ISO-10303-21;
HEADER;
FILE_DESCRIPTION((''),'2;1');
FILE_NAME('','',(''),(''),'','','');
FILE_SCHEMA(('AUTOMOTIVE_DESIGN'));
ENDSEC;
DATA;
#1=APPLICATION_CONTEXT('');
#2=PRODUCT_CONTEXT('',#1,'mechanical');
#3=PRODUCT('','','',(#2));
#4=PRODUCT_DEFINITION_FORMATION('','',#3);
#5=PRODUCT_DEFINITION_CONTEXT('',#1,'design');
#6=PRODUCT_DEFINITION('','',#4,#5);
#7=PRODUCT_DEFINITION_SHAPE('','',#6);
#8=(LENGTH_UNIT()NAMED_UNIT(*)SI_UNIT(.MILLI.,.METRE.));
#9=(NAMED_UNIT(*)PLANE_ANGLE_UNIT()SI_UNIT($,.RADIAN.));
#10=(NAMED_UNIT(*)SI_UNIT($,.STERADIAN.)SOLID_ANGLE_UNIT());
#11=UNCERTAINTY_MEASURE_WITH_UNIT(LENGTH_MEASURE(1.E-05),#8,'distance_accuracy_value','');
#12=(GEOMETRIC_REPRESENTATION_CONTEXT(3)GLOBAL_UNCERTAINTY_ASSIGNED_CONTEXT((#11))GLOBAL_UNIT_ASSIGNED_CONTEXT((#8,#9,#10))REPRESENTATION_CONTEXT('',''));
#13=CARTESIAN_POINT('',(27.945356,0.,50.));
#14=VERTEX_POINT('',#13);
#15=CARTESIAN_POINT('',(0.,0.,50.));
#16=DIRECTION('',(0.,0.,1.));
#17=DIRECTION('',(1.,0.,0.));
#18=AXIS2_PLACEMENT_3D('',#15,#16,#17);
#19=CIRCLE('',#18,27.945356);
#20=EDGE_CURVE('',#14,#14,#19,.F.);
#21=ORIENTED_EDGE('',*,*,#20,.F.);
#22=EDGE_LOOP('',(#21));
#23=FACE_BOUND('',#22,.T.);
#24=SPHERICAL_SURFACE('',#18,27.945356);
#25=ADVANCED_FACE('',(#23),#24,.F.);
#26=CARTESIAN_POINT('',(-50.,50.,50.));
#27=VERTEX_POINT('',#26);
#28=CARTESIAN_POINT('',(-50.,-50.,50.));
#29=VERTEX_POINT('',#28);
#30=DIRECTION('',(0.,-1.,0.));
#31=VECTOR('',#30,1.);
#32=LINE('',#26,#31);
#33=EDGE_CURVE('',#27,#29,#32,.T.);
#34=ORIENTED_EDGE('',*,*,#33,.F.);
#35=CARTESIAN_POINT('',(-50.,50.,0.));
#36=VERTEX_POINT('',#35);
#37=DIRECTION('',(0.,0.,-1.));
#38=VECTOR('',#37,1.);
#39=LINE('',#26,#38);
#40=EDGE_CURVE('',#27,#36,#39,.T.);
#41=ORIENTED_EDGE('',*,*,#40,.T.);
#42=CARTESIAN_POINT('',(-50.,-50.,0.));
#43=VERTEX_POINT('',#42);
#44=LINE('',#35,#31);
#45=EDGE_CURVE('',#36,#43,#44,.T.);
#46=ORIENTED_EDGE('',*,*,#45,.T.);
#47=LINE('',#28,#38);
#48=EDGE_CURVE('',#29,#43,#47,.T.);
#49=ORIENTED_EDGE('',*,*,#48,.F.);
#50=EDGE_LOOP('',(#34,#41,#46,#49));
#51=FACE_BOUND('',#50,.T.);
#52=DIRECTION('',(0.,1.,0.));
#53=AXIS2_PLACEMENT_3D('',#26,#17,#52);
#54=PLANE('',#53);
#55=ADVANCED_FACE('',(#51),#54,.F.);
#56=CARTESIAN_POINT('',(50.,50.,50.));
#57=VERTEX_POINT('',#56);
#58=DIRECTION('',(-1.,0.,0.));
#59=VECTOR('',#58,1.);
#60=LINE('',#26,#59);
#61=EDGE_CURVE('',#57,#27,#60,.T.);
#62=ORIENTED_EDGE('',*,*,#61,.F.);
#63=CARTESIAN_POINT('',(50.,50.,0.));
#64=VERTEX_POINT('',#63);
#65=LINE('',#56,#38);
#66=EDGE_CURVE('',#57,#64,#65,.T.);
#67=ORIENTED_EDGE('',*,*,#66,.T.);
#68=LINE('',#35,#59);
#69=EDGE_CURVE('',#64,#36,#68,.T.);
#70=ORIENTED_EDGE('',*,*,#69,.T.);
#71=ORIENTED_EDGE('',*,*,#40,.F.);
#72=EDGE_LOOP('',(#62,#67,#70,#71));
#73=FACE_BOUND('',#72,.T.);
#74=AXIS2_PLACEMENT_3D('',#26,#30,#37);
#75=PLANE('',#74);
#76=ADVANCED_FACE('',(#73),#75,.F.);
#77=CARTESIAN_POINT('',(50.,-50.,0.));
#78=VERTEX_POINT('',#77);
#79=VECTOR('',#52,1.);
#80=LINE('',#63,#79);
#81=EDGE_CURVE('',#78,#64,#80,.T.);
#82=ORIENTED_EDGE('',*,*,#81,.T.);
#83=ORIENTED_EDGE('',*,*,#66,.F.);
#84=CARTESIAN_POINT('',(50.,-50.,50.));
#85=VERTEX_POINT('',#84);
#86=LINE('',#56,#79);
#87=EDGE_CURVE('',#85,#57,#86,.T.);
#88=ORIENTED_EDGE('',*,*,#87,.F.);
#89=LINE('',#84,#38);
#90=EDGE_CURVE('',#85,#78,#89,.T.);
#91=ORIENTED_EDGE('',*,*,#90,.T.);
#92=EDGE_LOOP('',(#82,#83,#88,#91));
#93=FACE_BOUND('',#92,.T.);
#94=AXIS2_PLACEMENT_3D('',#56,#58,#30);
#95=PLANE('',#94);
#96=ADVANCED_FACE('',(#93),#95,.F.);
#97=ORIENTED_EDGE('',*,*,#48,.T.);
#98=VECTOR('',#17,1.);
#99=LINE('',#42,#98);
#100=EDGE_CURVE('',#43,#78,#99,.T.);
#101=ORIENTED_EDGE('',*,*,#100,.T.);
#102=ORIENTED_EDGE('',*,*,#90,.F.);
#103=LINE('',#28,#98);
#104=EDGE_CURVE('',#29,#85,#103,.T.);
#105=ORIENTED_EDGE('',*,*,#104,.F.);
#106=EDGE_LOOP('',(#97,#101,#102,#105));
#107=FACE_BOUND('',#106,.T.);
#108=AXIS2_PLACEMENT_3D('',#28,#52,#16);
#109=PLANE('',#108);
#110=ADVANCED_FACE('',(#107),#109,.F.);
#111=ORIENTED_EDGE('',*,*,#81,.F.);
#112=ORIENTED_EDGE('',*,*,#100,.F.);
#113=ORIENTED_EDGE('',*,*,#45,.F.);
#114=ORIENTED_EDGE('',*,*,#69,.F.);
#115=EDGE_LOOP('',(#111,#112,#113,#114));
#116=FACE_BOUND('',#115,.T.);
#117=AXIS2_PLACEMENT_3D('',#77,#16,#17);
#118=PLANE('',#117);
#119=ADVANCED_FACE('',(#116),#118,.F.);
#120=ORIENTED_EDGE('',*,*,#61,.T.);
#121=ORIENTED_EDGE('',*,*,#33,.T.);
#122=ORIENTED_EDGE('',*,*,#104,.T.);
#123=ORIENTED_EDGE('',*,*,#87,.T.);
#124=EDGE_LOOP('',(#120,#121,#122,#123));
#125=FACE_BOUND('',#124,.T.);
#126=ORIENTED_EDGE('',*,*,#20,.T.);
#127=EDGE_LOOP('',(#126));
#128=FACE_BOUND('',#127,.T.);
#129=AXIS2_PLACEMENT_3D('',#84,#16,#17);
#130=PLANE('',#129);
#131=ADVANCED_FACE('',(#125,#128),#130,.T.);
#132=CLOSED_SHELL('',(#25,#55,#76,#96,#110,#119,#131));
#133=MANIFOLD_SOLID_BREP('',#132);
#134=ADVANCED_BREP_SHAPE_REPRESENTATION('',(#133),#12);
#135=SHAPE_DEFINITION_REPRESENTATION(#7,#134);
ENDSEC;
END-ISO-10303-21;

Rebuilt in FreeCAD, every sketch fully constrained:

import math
import FreeCAD as App
import Part
import Sketcher
Q = App.Units.Quantity


def add_polygon(sketch, points):
    """Adds a closed chain of lines whose ends are joined by coincident constraints."""
    first, n = sketch.GeometryCount, len(points)
    for a, b in zip(points, points[1:] + points[:1]):
        sketch.addGeometry(Part.LineSegment(App.Vector(*a, 0), App.Vector(*b, 0)), False)
    for i in range(n):
        sketch.addConstraint(Sketcher.Constraint("Coincident", first + i, 2, first + (i + 1) % n, 1))

doc = App.newDocument("Part")
body = doc.addObject("PartDesign::Body", "Body")

sketch1 = doc.addObject("Sketcher::SketchObject", "Sketch")
body.addObject(sketch1)
sketch1.AttachmentSupport = (doc.XY_Plane, [""])
sketch1.MapMode = "FlatFace"
add_polygon(sketch1, [(-50, 50), (-50, -50), (50, -50), (50, 50)])
sketch1.addConstraint(Sketcher.Constraint("Vertical", 0))
sketch1.addConstraint(Sketcher.Constraint("Horizontal", 1))
sketch1.addConstraint(Sketcher.Constraint("Vertical", 2))
sketch1.addConstraint(Sketcher.Constraint("Horizontal", 3))
sketch1.addConstraint(Sketcher.Constraint("Symmetric", 0, 2, 2, 2, -1, 1))
sketch1.addConstraint(Sketcher.Constraint("Equal", 3, 0))
sketch1.addConstraint(Sketcher.Constraint("DistanceX", 1, 1, 1, 2, Q("100 mm")))
pad1 = doc.addObject("PartDesign::Pad", "Pad")
body.addObject(pad1)
pad1.Profile = sketch1
pad1.Length = 50

sketch2 = doc.addObject("Sketcher::SketchObject", "Sketch001")
body.addObject(sketch2)
sketch2.AttachmentSupport = (doc.XY_Plane, [""])
sketch2.MapMode = "FlatFace"
sketch2.AttachmentOffset = App.Placement(App.Vector(0, 0, 50), App.Rotation())
sketch2.addGeometry(Part.LineSegment(App.Vector(-28, 0, 0), App.Vector(28, 0, 0)), False)
sketch2.addGeometry(Part.ArcOfCircle(Part.Circle(App.Vector(0, 0, 0), App.Vector(0, 0, 1), 28), math.radians(0), math.radians(180)), False)
sketch2.addConstraint(Sketcher.Constraint("Coincident", 0, 1, 1, 2))
sketch2.addConstraint(Sketcher.Constraint("Coincident", 1, 1, 0, 2))
sketch2.addConstraint(Sketcher.Constraint("Horizontal", 0))
sketch2.addConstraint(Sketcher.Constraint("Coincident", 1, 3, -1, 1))
sketch2.addConstraint(Sketcher.Constraint("PointOnObject", 0, 1, -1))
sketch2.addConstraint(Sketcher.Constraint("Radius", 1, Q("27.945356 mm")))
groove = doc.addObject("PartDesign::Groove", "Groove")
body.addObject(groove)
groove.Profile = sketch2
groove.ReferenceAxis = (sketch2, ["H_Axis"])
groove.Angle = 360

doc.recompute()
